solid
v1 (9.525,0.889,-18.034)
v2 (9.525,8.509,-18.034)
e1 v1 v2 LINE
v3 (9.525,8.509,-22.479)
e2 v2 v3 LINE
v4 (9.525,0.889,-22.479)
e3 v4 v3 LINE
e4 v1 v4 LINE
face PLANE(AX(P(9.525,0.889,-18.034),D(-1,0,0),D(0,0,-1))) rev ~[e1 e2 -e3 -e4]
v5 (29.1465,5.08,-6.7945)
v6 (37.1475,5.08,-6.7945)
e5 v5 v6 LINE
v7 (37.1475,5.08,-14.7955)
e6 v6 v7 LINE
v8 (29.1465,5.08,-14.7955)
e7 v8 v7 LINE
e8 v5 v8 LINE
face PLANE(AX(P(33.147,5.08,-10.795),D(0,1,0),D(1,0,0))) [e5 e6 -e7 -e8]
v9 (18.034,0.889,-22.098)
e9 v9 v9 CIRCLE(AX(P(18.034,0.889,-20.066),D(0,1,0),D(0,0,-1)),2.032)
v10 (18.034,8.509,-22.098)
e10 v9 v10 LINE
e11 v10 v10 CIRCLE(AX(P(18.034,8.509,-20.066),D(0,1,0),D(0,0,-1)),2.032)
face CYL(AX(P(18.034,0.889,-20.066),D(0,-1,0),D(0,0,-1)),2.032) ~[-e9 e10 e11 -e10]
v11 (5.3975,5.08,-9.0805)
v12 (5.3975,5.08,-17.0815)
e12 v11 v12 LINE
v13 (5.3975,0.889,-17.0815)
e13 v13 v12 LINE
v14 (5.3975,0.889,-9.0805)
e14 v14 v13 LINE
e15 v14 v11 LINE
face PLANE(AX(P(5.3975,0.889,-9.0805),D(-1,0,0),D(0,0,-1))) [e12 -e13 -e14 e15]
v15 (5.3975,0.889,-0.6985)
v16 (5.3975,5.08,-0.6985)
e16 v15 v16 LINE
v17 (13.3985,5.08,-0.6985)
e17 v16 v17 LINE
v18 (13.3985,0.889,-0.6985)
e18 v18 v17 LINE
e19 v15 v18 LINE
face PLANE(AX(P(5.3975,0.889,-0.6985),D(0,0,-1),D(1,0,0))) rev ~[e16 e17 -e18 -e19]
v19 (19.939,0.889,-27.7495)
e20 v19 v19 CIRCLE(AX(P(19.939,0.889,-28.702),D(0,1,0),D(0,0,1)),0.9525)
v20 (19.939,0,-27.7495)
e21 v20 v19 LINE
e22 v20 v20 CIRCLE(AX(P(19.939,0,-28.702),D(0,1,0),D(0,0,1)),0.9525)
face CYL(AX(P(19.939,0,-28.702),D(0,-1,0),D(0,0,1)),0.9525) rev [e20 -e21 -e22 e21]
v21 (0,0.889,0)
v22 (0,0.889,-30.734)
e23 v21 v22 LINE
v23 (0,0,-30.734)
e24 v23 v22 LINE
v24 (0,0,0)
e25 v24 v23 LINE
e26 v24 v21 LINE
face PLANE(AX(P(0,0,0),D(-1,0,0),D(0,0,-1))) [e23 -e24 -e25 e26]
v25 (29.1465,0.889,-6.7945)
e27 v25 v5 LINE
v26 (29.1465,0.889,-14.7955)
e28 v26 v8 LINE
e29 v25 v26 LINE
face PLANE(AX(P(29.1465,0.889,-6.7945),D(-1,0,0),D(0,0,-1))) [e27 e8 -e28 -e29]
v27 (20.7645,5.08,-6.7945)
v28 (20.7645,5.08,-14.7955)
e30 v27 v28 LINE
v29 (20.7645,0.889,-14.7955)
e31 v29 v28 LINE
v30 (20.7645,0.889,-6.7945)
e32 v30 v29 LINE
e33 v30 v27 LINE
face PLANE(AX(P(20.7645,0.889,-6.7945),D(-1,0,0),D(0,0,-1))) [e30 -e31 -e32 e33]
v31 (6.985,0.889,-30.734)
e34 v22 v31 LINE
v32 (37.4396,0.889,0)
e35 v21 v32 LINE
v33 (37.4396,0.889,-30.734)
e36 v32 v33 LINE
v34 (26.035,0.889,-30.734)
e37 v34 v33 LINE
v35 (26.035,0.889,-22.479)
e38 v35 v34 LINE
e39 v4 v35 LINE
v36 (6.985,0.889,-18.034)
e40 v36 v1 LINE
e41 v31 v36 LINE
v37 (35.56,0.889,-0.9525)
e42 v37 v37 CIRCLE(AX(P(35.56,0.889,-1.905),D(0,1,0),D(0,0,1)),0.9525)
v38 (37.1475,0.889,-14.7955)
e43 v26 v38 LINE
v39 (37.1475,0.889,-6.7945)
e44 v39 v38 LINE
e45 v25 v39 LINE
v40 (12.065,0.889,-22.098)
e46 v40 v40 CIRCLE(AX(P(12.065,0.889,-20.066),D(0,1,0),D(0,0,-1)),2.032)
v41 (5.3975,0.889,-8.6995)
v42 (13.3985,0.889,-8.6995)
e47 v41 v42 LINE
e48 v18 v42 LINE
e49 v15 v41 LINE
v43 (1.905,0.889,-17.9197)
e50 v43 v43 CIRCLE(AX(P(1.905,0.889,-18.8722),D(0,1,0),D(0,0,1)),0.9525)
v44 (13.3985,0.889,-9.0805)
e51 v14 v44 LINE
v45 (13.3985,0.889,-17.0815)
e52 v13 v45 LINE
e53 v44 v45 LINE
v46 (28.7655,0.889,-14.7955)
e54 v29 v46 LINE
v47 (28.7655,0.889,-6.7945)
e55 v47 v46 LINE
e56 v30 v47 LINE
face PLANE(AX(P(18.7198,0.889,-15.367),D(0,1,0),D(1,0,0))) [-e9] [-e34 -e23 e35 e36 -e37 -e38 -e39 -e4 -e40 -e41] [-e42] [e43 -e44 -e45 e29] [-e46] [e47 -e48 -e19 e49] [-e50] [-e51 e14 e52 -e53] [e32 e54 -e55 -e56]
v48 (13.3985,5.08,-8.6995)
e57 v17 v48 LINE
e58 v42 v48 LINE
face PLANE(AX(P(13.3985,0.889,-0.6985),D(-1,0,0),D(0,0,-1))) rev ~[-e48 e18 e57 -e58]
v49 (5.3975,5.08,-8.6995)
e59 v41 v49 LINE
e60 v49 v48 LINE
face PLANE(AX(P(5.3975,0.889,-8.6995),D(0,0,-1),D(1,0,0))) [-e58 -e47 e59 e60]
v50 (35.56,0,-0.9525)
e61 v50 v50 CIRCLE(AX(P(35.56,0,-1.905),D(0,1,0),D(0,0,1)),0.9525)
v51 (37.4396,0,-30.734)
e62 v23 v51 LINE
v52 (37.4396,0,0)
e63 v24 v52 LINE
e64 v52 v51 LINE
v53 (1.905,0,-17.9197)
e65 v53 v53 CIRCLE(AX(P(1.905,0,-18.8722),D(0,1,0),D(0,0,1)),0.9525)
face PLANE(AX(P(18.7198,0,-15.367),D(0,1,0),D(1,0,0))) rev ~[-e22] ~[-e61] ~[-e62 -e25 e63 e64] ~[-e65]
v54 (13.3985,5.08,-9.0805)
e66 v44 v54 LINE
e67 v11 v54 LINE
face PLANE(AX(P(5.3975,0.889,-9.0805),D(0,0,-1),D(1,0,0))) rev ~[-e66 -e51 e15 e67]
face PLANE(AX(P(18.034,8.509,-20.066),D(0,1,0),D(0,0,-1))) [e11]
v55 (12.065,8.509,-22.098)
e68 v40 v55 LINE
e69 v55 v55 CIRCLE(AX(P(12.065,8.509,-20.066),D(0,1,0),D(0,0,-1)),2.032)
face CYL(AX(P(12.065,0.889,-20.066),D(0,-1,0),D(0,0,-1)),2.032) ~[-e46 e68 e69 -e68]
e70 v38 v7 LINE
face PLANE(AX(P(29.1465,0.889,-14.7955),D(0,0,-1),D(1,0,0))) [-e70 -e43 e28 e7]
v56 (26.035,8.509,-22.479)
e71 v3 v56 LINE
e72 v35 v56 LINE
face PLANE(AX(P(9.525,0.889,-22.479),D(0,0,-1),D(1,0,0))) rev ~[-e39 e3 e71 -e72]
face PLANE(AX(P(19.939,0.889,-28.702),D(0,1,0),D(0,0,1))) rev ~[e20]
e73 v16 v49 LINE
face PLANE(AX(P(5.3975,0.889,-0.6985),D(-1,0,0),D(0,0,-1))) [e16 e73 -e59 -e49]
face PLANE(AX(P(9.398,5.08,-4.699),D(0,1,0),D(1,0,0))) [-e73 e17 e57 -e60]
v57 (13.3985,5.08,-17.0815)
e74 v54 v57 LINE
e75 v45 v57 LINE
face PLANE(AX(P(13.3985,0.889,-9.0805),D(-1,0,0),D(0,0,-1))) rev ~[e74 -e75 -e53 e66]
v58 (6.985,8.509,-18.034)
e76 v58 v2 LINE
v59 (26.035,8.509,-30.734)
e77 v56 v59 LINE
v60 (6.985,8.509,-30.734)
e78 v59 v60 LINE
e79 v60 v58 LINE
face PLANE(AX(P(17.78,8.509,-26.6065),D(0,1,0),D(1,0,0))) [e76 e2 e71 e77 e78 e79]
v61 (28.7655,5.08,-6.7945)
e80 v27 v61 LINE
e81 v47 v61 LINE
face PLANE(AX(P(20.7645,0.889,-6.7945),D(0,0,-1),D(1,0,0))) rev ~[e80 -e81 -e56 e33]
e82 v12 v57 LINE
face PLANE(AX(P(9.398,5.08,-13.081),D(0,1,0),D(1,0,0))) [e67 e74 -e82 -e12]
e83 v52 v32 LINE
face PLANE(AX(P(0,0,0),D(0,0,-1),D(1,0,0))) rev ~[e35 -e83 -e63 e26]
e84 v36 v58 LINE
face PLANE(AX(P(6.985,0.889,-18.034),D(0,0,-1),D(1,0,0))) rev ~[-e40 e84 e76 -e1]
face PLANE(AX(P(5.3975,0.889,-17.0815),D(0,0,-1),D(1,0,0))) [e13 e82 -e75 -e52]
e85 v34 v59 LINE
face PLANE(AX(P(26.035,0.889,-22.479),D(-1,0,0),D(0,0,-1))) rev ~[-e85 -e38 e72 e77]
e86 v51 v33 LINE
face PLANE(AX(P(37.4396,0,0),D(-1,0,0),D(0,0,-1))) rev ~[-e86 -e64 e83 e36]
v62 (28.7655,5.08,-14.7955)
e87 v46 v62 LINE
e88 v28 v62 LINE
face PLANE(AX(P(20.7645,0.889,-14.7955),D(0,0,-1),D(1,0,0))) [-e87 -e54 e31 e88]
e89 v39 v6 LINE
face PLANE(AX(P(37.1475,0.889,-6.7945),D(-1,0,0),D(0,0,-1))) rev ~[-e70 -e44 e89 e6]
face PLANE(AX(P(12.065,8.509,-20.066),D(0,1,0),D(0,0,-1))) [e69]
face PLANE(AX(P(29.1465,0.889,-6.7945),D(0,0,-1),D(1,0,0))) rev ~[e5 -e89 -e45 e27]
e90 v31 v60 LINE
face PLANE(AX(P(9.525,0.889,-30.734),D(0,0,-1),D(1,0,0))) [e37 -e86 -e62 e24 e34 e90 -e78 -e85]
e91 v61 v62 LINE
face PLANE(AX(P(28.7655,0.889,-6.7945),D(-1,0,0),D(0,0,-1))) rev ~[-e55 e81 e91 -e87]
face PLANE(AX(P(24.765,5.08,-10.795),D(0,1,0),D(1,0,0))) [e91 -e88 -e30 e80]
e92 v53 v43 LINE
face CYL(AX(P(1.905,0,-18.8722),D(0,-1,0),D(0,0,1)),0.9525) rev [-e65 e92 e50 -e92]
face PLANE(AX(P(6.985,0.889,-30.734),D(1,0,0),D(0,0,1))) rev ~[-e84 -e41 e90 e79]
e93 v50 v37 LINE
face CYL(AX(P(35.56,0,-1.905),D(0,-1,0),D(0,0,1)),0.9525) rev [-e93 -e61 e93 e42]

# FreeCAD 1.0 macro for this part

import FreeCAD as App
import Part
import Sketcher

V = App.Vector
Q = App.Units.Quantity


def add_polygon(sketch, points):
    """Adds a closed chain of lines whose ends are joined by coincident constraints."""
    first, n = sketch.GeometryCount, len(points)
    for a, b in zip(points, points[1:] + points[:1]):
        sketch.addGeometry(Part.LineSegment(App.Vector(*a, 0), App.Vector(*b, 0)), False)
    for i in range(n):
        sketch.addConstraint(Sketcher.Constraint("Coincident", first + i, 2, first + (i + 1) % n, 1))

doc = App.newDocument("Part")
body = doc.addObject("PartDesign::Body", "Body")

sketch1 = body.newObject("Sketcher::SketchObject", "Sketch")
sketch1.AttachmentSupport = (doc.getObject("XZ_Plane"), [""])
sketch1.MapMode = "FlatFace"
add_polygon(sketch1, [(0, -30.734), (0, 0), (37.4396, 0), (37.4396, -30.734)])
sketch1.addGeometry(Part.Circle(V(35.56, -1.905, 0), V(0, 0, 1), 0.9525), False)
sketch1.addGeometry(Part.Circle(V(1.905, -18.8722, 0), V(0, 0, 1), 0.9525), False)
sketch1.addGeometry(Part.Circle(V(19.939, -28.702, 0), V(0, 0, 1), 0.9525), False)
sketch1.addConstraint([
    Sketcher.Constraint("Vertical", 0),
    Sketcher.Constraint("Horizontal", 1),
    Sketcher.Constraint("Vertical", 2),
    Sketcher.Constraint("Horizontal", 3),
    Sketcher.Constraint("Coincident", 0, 2, -1, 1),
    Sketcher.Constraint("Equal", 4, 5),
    Sketcher.Constraint("Equal", 5, 6),
    Sketcher.Constraint("Diameter", 4, Q("0.075 in")),
    Sketcher.Constraint("DistanceY", 0, 1, 0, 2, Q("1.21 in")),
    Sketcher.Constraint("DistanceX", -1, 1, 4, 3, Q("1.4 in")),
    Sketcher.Constraint("DistanceX", 1, 1, 1, 2, Q("1.474 in")),
    Sketcher.Constraint("DistanceY", 6, 3, -1, 1, Q("1.13 in")),
    Sketcher.Constraint("DistanceX", 5, 3, 6, 3, Q("0.71 in")),
    Sketcher.Constraint("DistanceY", 4, 3, -1, 1, Q("0.075 in")),
    Sketcher.Constraint("DistanceX", -1, 1, 5, 3, Q("0.075 in")),
    Sketcher.Constraint("DistanceY", 5, 3, -1, 1, Q("0.743 in")),
])
pad1 = body.newObject("PartDesign::Pad", "Pad")
pad1.Profile = sketch1
pad1.Length = Q("0.035 in")
pad1.Reversed = True

sketch2 = body.newObject("Sketcher::SketchObject", "Sketch001")
sketch2.AttachmentSupport = (doc.getObject("XZ_Plane"), [""])
sketch2.MapMode = "FlatFace"
sketch2.AttachmentOffset = App.Placement(V(0, 0, -0.035 * 25.4), App.Rotation())
sketch2.addGeometry([
    Part.Circle(V(12.065, -20.066, 0), V(0, 0, 1), 2.032),
    Part.Circle(V(18.034, -20.066, 0), V(0, 0, 1), 2.032),
], False)
sketch2.addConstraint([
    Sketcher.Constraint("Equal", 0, 1),
    Sketcher.Constraint("Horizontal", 0, 3, 1, 3),
    Sketcher.Constraint("Diameter", 0, Q("0.16 in")),
    Sketcher.Constraint("DistanceY", 0, 3, -1, 1, Q("0.79 in")),
    Sketcher.Constraint("DistanceX", -1, 1, 1, 3, Q("0.71 in")),
    Sketcher.Constraint("DistanceX", -1, 1, 0, 3, Q("0.475 in")),
])
pad2 = body.newObject("PartDesign::Pad", "Pad001")
pad2.Profile = sketch2
pad2.Length = Q("0.3 in")
pad2.Reversed = True

sketch3 = body.newObject("Sketcher::SketchObject", "Sketch002")
sketch3.AttachmentSupport = (doc.getObject("XZ_Plane"), [""])
sketch3.MapMode = "FlatFace"
sketch3.AttachmentOffset = App.Placement(V(0, 0, -0.035 * 25.4), App.Rotation())
add_polygon(sketch3, [(9.525, -22.479), (26.035, -22.479), (26.035, -30.734), (6.985, -30.734), (6.985, -18.034), (9.525, -18.034)])
sketch3.addConstraint([
    Sketcher.Constraint("Horizontal", 0),
    Sketcher.Constraint("Vertical", 1),
    Sketcher.Constraint("Horizontal", 2),
    Sketcher.Constraint("Vertical", 3),
    Sketcher.Constraint("Horizontal", 4),
    Sketcher.Constraint("Vertical", 5),
    Sketcher.Constraint("DistanceX", 4, 1, 4, 2, Q("0.1 in")),
    Sketcher.Constraint("DistanceY", 3, 1, 3, 2, Q("0.5 in")),
    Sketcher.Constraint("DistanceX", 0, 1, 0, 2, Q("0.65 in")),
    Sketcher.Constraint("DistanceY", 1, 2, 1, 1, Q("0.325 in")),
    Sketcher.Constraint("DistanceY", 1, 2, -1, 1, Q("1.21 in")),
    Sketcher.Constraint("DistanceX", -1, 1, 0, 2, Q("1.025 in")),
])
pad3 = body.newObject("PartDesign::Pad", "Pad002")
pad3.Profile = sketch3
pad3.Length = Q("0.3 in")
pad3.Reversed = True

sketch4 = body.newObject("Sketcher::SketchObject", "Sketch003")
sketch4.AttachmentSupport = (doc.getObject("XZ_Plane"), [""])
sketch4.MapMode = "FlatFace"
sketch4.AttachmentOffset = App.Placement(V(0, 0, -0.035 * 25.4), App.Rotation())
add_polygon(sketch4, [(20.7645, -14.7955), (20.7645, -6.7945), (28.7655, -6.7945), (28.7655, -14.7955)])
add_polygon(sketch4, [(29.1465, -14.7955), (29.1465, -6.7945), (37.1475, -6.7945), (37.1475, -14.7955)])
add_polygon(sketch4, [(5.3975, -8.6995), (5.3975, -0.6985), (13.3985, -0.6985), (13.3985, -8.6995)])
add_polygon(sketch4, [(5.3975, -17.0815), (5.3975, -9.0805), (13.3985, -9.0805), (13.3985, -17.0815)])
sketch4.addConstraint([
    Sketcher.Constraint("Vertical", 0),
    Sketcher.Constraint("Horizontal", 1),
    Sketcher.Constraint("Vertical", 2),
    Sketcher.Constraint("Horizontal", 3),
    Sketcher.Constraint("Vertical", 4),
    Sketcher.Constraint("Horizontal", 5),
    Sketcher.Constraint("Vertical", 6),
    Sketcher.Constraint("Horizontal", 7),
    Sketcher.Constraint("Vertical", 8),
    Sketcher.Constraint("Horizontal", 9),
    Sketcher.Constraint("Vertical", 10),
    Sketcher.Constraint("Horizontal", 11),
    Sketcher.Constraint("Vertical", 12),
    Sketcher.Constraint("Horizontal", 13),
    Sketcher.Constraint("Vertical", 14),
    Sketcher.Constraint("Horizontal", 15),
    Sketcher.Constraint("Horizontal", 1, 2, 4, 2),
    Sketcher.Constraint("Horizontal", 3, 2, 6, 2),
    Sketcher.Constraint("Vertical", 11, 2, 12, 2),
    Sketcher.Constraint("Vertical", 10, 2, 13, 2),
    Sketcher.Constraint("Equal", 3, 5),
    Sketcher.Constraint("Equal", 7, 9),
    Sketcher.Constraint("Equal", 15, 0),
    Sketcher.Constraint("Equal", 6, 8),
    Sketcher.Constraint("Equal", 10, 12),
    Sketcher.Constraint("DistanceX", 1, 1, 1, 2, Q("0.315 in")),
    Sketcher.Constraint("DistanceX", 0, 2, 4, 2, Q("0.33 in")),
    Sketcher.Constraint("DistanceY", 0, 2, 8, 2, Q("0.24 in")),
    Sketcher.Constraint("DistanceX", 8, 2, 1, 2, Q("0.92 in")),
    Sketcher.Constraint("DistanceY", 12, 2, 8, 2, Q("0.33 in")),
    Sketcher.Constraint("DistanceX", -1, 1, 0, 2, Q("0.8175 in")),
    Sketcher.Constraint("DistanceY", 0, 2, -1, 1, Q("0.2675 in")),
])
pad4 = body.newObject("PartDesign::Pad", "Pad003")
pad4.Profile = sketch4
pad4.Length = Q("0.165 in")
pad4.Reversed = True

doc.recompute()
